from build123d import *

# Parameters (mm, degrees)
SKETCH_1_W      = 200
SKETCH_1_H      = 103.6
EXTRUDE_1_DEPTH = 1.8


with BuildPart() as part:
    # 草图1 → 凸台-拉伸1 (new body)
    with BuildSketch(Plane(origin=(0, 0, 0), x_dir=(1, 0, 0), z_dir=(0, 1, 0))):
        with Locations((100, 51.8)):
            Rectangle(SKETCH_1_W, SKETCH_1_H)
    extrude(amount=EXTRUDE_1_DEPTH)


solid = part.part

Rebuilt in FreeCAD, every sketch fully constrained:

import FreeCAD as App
import Part
import Sketcher

V = App.Vector
Q = App.Units.Quantity


def add_polygon(sketch, points):
    """Adds a closed chain of lines whose ends are joined by coincident constraints."""
    first, n = sketch.GeometryCount, len(points)
    for a, b in zip(points, points[1:] + points[:1]):
        sketch.addGeometry(Part.LineSegment(App.Vector(*a, 0), App.Vector(*b, 0)), False)
    for i in range(n):
        sketch.addConstraint(Sketcher.Constraint("Coincident", first + i, 2, first + (i + 1) % n, 1))

doc = App.newDocument("Part")
body = doc.addObject("PartDesign::Body", "Body")

# Sketch on XZ plane
sketch1 = doc.addObject("Sketcher::SketchObject", "Sketch")
body.addObject(sketch1)
sketch1.AttachmentSupport = (doc.XZ_Plane, [""])
sketch1.MapMode = "FlatFace"
add_polygon(sketch1, [(0, -104), (0, 0), (200, 0), (200, -104)])  # lines 0-3
sketch1.addConstraint(Sketcher.Constraint("Vertical", 0))
sketch1.addConstraint(Sketcher.Constraint("Horizontal", 1))
sketch1.addConstraint(Sketcher.Constraint("Vertical", 2))
sketch1.addConstraint(Sketcher.Constraint("Horizontal", 3))
sketch1.addConstraint(Sketcher.Constraint("Coincident", 0, 2, -1, 1))
sketch1.addConstraint(Sketcher.Constraint("DistanceX", 1, 1, 1, 2, Q("200 mm")))
sketch1.addConstraint(Sketcher.Constraint("DistanceY", 0, 1, 0, 2, Q("103.6 mm")))
pad1 = doc.addObject("PartDesign::Pad", "Pad")
body.addObject(pad1)
pad1.Profile = sketch1
pad1.Length = 1.8
pad1.Reversed = True

doc.recompute()
